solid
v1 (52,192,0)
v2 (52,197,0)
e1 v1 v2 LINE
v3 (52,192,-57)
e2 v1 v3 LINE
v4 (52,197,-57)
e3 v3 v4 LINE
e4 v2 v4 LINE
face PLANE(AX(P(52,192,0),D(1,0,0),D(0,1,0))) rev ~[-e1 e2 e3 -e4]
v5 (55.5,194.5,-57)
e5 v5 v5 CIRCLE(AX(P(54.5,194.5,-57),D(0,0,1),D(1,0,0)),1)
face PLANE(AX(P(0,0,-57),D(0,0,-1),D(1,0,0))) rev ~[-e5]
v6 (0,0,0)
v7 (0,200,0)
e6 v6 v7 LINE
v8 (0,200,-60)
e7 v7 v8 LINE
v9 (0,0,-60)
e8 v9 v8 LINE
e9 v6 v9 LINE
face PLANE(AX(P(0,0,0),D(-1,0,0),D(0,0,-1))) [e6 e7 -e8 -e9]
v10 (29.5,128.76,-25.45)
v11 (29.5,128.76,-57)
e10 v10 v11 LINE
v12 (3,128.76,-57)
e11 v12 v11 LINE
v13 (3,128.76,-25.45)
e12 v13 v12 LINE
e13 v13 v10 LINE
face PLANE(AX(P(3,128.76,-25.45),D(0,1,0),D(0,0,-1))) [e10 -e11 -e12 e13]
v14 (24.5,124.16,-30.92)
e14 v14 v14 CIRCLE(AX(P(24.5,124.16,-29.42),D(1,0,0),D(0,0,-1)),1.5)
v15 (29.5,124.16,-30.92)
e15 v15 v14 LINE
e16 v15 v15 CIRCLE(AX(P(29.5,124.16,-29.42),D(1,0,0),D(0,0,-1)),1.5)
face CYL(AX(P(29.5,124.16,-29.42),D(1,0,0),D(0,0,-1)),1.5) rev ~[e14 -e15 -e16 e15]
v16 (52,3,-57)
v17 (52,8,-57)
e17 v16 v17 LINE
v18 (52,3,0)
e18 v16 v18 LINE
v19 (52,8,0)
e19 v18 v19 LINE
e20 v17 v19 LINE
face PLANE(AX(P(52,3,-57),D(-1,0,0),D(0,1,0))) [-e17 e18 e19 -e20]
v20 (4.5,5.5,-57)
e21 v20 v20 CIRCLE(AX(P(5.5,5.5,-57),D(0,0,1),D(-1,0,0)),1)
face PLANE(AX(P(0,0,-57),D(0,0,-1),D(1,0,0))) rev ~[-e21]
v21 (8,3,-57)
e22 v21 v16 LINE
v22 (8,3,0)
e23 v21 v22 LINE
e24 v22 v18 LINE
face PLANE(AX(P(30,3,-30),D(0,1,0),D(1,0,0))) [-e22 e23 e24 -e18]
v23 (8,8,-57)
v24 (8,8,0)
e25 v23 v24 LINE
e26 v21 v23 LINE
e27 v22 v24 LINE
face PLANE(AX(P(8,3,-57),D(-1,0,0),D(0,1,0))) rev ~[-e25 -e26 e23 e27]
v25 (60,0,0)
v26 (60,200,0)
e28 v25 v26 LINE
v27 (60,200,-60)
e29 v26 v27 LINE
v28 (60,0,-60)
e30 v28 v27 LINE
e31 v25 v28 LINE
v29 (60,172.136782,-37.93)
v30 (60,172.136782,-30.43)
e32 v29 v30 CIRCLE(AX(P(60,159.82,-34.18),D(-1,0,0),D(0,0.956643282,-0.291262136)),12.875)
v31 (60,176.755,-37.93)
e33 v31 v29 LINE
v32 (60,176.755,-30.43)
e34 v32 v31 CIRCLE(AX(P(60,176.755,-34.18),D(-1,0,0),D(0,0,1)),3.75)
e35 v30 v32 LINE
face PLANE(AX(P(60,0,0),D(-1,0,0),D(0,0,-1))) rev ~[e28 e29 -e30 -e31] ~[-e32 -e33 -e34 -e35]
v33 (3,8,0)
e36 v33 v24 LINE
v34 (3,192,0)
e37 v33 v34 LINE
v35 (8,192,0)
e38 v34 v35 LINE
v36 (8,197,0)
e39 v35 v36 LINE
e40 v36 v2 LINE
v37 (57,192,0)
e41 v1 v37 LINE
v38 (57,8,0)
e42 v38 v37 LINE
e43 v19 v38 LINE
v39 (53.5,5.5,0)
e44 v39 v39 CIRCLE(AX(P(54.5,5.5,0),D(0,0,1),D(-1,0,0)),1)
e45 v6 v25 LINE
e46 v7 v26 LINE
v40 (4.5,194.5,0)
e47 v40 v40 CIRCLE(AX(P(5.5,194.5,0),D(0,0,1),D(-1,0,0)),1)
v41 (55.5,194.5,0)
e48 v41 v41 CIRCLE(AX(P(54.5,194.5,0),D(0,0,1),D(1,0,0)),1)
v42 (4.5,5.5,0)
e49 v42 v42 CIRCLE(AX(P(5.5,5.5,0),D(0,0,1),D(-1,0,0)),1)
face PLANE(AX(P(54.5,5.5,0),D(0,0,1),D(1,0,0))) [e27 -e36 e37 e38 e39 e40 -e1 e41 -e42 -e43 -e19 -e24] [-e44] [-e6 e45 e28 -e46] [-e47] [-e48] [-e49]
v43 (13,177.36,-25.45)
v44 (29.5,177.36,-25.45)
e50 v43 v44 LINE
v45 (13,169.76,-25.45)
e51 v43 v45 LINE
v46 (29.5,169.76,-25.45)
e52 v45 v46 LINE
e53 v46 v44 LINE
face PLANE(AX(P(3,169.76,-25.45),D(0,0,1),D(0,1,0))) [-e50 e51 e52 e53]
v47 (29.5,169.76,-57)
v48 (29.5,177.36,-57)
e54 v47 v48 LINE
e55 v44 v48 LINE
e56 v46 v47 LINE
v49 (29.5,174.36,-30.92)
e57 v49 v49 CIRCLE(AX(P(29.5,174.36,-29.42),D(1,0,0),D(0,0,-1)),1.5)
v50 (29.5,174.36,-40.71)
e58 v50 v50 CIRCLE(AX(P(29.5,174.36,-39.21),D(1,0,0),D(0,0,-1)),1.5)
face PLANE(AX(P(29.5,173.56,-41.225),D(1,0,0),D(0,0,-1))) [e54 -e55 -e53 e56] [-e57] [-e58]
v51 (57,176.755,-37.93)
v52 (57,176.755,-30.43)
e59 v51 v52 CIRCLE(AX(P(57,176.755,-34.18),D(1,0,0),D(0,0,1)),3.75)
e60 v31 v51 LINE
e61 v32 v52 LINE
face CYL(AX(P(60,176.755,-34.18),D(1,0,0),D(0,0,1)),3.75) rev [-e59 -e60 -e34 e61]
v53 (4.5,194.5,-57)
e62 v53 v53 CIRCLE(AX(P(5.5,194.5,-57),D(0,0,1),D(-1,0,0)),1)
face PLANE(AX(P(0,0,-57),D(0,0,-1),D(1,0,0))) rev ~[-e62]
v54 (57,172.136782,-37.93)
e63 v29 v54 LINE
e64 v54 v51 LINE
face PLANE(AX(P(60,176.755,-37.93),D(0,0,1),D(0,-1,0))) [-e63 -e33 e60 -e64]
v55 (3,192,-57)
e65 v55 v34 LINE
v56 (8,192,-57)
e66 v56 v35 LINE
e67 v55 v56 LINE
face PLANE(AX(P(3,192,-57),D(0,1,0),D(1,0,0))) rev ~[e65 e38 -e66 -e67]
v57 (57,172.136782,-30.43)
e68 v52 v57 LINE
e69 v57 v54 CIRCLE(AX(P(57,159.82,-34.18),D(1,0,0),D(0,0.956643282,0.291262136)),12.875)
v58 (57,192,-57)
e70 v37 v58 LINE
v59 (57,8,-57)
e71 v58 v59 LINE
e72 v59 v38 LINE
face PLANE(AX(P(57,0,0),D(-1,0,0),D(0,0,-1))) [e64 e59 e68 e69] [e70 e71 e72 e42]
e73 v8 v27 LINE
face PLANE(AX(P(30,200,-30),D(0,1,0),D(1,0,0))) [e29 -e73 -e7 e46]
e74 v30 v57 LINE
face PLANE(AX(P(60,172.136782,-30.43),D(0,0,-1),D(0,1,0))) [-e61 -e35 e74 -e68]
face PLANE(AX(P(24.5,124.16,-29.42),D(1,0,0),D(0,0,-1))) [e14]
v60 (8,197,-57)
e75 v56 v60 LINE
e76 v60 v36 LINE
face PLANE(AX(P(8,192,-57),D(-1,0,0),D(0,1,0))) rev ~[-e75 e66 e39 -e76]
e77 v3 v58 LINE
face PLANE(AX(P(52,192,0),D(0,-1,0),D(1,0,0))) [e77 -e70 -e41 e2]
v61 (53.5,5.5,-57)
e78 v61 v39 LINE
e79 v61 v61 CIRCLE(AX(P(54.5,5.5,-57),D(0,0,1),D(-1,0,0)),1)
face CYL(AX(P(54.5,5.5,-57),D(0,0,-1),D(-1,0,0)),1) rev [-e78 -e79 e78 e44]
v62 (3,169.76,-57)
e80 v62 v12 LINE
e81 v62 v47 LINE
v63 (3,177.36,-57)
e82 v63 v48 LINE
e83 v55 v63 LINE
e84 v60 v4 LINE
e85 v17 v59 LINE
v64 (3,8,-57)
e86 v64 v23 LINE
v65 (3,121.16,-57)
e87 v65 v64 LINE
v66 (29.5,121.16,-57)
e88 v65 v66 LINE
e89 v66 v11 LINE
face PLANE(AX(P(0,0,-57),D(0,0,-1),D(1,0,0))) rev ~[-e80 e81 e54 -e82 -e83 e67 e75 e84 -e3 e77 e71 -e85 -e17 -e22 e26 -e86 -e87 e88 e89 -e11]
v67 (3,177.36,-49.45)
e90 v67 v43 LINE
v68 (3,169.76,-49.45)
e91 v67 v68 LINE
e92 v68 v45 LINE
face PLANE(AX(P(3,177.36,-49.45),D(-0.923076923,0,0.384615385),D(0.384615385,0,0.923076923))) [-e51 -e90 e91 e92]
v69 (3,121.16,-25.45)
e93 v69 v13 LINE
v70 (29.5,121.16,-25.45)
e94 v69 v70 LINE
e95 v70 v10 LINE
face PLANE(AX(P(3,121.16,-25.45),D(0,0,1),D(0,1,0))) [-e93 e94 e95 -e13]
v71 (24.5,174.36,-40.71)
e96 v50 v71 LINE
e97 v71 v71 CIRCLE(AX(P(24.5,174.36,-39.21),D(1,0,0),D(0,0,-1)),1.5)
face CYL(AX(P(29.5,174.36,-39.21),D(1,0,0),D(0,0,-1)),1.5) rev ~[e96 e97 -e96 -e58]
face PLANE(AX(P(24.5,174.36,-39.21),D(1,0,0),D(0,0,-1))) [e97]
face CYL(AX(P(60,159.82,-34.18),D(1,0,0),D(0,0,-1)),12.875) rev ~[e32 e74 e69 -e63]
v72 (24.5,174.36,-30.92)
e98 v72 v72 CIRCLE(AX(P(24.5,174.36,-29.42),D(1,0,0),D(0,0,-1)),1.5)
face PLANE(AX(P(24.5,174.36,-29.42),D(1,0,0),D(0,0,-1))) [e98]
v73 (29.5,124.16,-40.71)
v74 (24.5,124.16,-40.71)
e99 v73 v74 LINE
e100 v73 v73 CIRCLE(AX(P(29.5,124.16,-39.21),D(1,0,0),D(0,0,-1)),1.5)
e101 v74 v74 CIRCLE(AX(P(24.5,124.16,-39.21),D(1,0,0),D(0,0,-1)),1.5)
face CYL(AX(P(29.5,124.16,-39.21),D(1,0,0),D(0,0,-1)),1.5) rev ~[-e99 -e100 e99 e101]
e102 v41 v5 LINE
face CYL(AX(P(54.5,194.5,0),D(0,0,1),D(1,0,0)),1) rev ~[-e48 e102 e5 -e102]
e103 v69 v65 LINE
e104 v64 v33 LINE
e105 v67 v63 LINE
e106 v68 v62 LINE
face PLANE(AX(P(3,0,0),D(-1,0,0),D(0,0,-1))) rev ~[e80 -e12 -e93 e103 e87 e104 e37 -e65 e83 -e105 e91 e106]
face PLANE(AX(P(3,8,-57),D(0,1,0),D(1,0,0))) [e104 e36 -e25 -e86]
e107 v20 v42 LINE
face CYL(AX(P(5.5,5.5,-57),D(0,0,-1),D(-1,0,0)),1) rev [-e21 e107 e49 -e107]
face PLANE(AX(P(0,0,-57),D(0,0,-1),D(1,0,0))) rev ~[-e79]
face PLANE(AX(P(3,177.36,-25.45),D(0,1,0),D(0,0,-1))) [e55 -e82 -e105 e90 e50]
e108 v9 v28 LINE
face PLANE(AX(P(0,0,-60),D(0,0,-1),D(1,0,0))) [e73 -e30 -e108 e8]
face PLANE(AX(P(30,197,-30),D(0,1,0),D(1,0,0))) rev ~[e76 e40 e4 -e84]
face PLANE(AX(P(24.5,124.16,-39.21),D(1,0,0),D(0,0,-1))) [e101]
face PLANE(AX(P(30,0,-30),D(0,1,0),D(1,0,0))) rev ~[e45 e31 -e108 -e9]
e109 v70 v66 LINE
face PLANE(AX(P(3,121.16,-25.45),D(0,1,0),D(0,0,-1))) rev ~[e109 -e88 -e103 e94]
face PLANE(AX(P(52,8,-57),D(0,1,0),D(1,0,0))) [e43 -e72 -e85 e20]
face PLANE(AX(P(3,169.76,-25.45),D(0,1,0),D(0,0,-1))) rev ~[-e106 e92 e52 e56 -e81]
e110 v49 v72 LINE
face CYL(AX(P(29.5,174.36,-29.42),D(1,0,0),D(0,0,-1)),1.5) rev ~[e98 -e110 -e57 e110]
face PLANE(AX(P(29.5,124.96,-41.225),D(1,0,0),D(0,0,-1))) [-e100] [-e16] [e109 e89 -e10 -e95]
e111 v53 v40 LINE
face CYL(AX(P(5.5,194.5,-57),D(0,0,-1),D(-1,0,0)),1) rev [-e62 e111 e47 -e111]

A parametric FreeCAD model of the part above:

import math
import FreeCAD as App
import Part
import Sketcher
Q = App.Units.Quantity


def faces_at(feature, points):
    """Names of the faces that lie closest to the given points."""
    faces = feature.Shape.Faces
    near = lambda p: min(range(len(faces)), key=lambda i: faces[i].distToShape(Part.Vertex(*p))[0])
    return sorted({f"Face{near(p) + 1}" for p in points})


def add_polygon(sketch, points):
    """Adds a closed chain of lines whose ends are joined by coincident constraints."""
    first, n = sketch.GeometryCount, len(points)
    for a, b in zip(points, points[1:] + points[:1]):
        sketch.addGeometry(Part.LineSegment(App.Vector(*a, 0), App.Vector(*b, 0)), False)
    for i in range(n):
        sketch.addConstraint(Sketcher.Constraint("Coincident", first + i, 2, first + (i + 1) % n, 1))

doc = App.newDocument("Part")
body = doc.addObject("PartDesign::Body", "Body")

sketch1 = body.newObject("Sketcher::SketchObject", "Sketch")
sketch1.AttachmentSupport = (doc.getObject("XZ_Plane"), [""])
sketch1.MapMode = "FlatFace"
add_polygon(sketch1, [(0, -60), (0, 0), (60, 0), (60, -60)])
sketch1.addConstraint([
    Sketcher.Constraint("Vertical", 0),
    Sketcher.Constraint("Horizontal", 1),
    Sketcher.Constraint("Vertical", 2),
    Sketcher.Constraint("Horizontal", 3),
    Sketcher.Constraint("Coincident", 0, 2, -1, 1),
    Sketcher.Constraint("Equal", 3, 0),
    Sketcher.Constraint("DistanceX", 1, 1, 1, 2, Q("60 mm")),
])
pad1 = body.newObject("PartDesign::Pad", "Pad")
pad1.Profile = sketch1
pad1.Length = 200
pad1.Reversed = True
doc.recompute()

thickness = body.newObject("PartDesign::Thickness", "Thickness")
thickness.Base = (pad1, faces_at(pad1, [(30, 100, 0)]))
thickness.Value = 3
thickness.Reversed = True
thickness.Join = "Intersection"

sketch2 = body.newObject("Sketcher::SketchObject", "Sketch001")
sketch2.AttachmentSupport = (doc.getObject("XY_Plane"), [""])
sketch2.MapMode = "FlatFace"
sketch2.AttachmentOffset = App.Placement(App.Vector(0, 0, -57), App.Rotation())
add_polygon(sketch2, [(3, 197), (3, 192), (8, 192), (8, 197)])
sketch2.addGeometry(Part.Circle(App.Vector(5.5, 194.5, 0), App.Vector(0, 0, 1), 1), False)
sketch2.addConstraint([
    Sketcher.Constraint("Vertical", 0),
    Sketcher.Constraint("Horizontal", 1),
    Sketcher.Constraint("Vertical", 2),
    Sketcher.Constraint("Horizontal", 3),
    Sketcher.Constraint("Equal", 3, 0),
    Sketcher.Constraint("Diameter", 4, Q("2 mm")),
    Sketcher.Constraint("DistanceX", 1, 1, 1, 2, Q("5 mm")),
    Sketcher.Constraint("DistanceX", -1, 1, 0, 2, Q("3 mm")),
    Sketcher.Constraint("DistanceY", -1, 1, 0, 2, Q("192 mm")),
    Sketcher.Constraint("DistanceX", -1, 1, 4, 3, Q("5.5 mm")),
    Sketcher.Constraint("DistanceY", -1, 1, 4, 3, Q("194.5 mm")),
])
pad2 = body.newObject("PartDesign::Pad", "Pad001")
pad2.Profile = sketch2
pad2.Length = 57

sketch3 = body.newObject("Sketcher::SketchObject", "Sketch002")
sketch3.AttachmentSupport = (doc.getObject("XY_Plane"), [""])
sketch3.MapMode = "FlatFace"
add_polygon(sketch3, [(52, 197), (52, 192), (57, 192), (57, 197)])
sketch3.addGeometry(Part.Circle(App.Vector(54.5, 194.5, 0), App.Vector(0, 0, 1), 1), False)
sketch3.addConstraint([
    Sketcher.Constraint("Vertical", 0),
    Sketcher.Constraint("Horizontal", 1),
    Sketcher.Constraint("Vertical", 2),
    Sketcher.Constraint("Horizontal", 3),
    Sketcher.Constraint("Equal", 3, 0),
    Sketcher.Constraint("Diameter", 4, Q("2 mm")),
    Sketcher.Constraint("DistanceX", 1, 1, 1, 2, Q("5 mm")),
    Sketcher.Constraint("DistanceX", -1, 1, 0, 2, Q("52 mm")),
    Sketcher.Constraint("DistanceY", -1, 1, 0, 2, Q("192 mm")),
    Sketcher.Constraint("DistanceX", -1, 1, 4, 3, Q("54.5 mm")),
    Sketcher.Constraint("DistanceY", -1, 1, 4, 3, Q("194.5 mm")),
])
pad3 = body.newObject("PartDesign::Pad", "Pad002")
pad3.Profile = sketch3
pad3.Length = 57
pad3.Reversed = True

sketch4 = body.newObject("Sketcher::SketchObject", "Sketch003")
sketch4.AttachmentSupport = (doc.getObject("XY_Plane"), [""])
sketch4.MapMode = "FlatFace"
sketch4.AttachmentOffset = App.Placement(App.Vector(0, 0, -57), App.Rotation())
add_polygon(sketch4, [(3, 8), (3, 3), (8, 3), (8, 8)])
sketch4.addGeometry(Part.Circle(App.Vector(5.5, 5.5, 0), App.Vector(0, 0, 1), 1), False)
sketch4.addConstraint([
    Sketcher.Constraint("Vertical", 0),
    Sketcher.Constraint("Horizontal", 1),
    Sketcher.Constraint("Vertical", 2),
    Sketcher.Constraint("Horizontal", 3),
    Sketcher.Constraint("Equal", 3, 0),
    Sketcher.Constraint("Diameter", 4, Q("2 mm")),
    Sketcher.Constraint("DistanceX", 1, 1, 1, 2, Q("5 mm")),
    Sketcher.Constraint("DistanceX", -1, 1, 0, 2, Q("3 mm")),
    Sketcher.Constraint("DistanceY", -1, 1, 0, 2, Q("3 mm")),
    Sketcher.Constraint("DistanceX", -1, 1, 4, 3, Q("5.5 mm")),
    Sketcher.Constraint("DistanceY", -1, 1, 4, 3, Q("5.5 mm")),
])
pad4 = body.newObject("PartDesign::Pad", "Pad003")
pad4.Profile = sketch4
pad4.Length = 57

sketch5 = body.newObject("Sketcher::SketchObject", "Sketch004")
sketch5.AttachmentSupport = (doc.getObject("XY_Plane"), [""])
sketch5.MapMode = "FlatFace"
sketch5.AttachmentOffset = App.Placement(App.Vector(0, 0, -57), App.Rotation())
add_polygon(sketch5, [(52, 8), (52, 3), (57, 3), (57, 8)])
sketch5.addGeometry(Part.Circle(App.Vector(54.5, 5.5, 0), App.Vector(0, 0, 1), 1), False)
sketch5.addConstraint([
    Sketcher.Constraint("Vertical", 0),
    Sketcher.Constraint("Horizontal", 1),
    Sketcher.Constraint("Vertical", 2),
    Sketcher.Constraint("Horizontal", 3),
    Sketcher.Constraint("Equal", 3, 0),
    Sketcher.Constraint("Diameter", 4, Q("2 mm")),
    Sketcher.Constraint("DistanceX", 1, 1, 1, 2, Q("5 mm")),
    Sketcher.Constraint("DistanceX", -1, 1, 0, 2, Q("52 mm")),
    Sketcher.Constraint("DistanceY", -1, 1, 0, 2, Q("3 mm")),
    Sketcher.Constraint("DistanceX", -1, 1, 4, 3, Q("54.5 mm")),
    Sketcher.Constraint("DistanceY", -1, 1, 4, 3, Q("5.5 mm")),
])
pad5 = body.newObject("PartDesign::Pad", "Pad004")
pad5.Profile = sketch5
pad5.Length = 57

sketch6 = body.newObject("Sketcher::SketchObject", "Sketch005")
sketch6.AttachmentSupport = (doc.getObject("YZ_Plane"), [""])
sketch6.MapMode = "FlatFace"
sketch6.AttachmentOffset = App.Placement(App.Vector(0, 0, 60), App.Rotation())
sketch6.addGeometry(Part.Circle(App.Vector(160, -34, 0), App.Vector(0, 0, 1), 13), False)
sketch6.addConstraint([
    Sketcher.Constraint("Diameter", 0, Q("25.75 mm")),
    Sketcher.Constraint("DistanceX", -1, 1, 0, 3, Q("159.82 mm")),
    Sketcher.Constraint("DistanceY", 0, 3, -1, 1, Q("34.18 mm")),
])
pocket1 = body.newObject("PartDesign::Pocket", "Pocket")
pocket1.Profile = sketch6
pocket1.Length = 3

sketch7 = body.newObject("Sketcher::SketchObject", "Sketch006")
sketch7.AttachmentSupport = (doc.getObject("YZ_Plane"), [""])
sketch7.MapMode = "FlatFace"
sketch7.AttachmentOffset = App.Placement(App.Vector(0, 0, 3), App.Rotation())
add_polygon(sketch7, [(177, -25), (170, -25), (170, -57), (177, -57)])
add_polygon(sketch7, [(129, -25), (121, -25), (121, -57), (129, -57)])
sketch7.addConstraint([
    Sketcher.Constraint("Horizontal", 0),
    Sketcher.Constraint("Vertical", 1),
    Sketcher.Constraint("Horizontal", 2),
    Sketcher.Constraint("Vertical", 3),
    Sketcher.Constraint("Horizontal", 4),
    Sketcher.Constraint("Vertical", 5),
    Sketcher.Constraint("Horizontal", 6),
    Sketcher.Constraint("Vertical", 7),
    Sketcher.Constraint("Horizontal", 3, 2, 4, 2),
    Sketcher.Constraint("Horizontal", 2, 2, 5, 2),
    Sketcher.Constraint("Equal", 2, 4),
    Sketcher.Constraint("DistanceX", 0, 2, 0, 1, Q("7.6 mm")),
    Sketcher.Constraint("DistanceY", 1, 2, -1, 1, Q("57 mm")),
    Sketcher.Constraint("DistanceX", 6, 2, 1, 2, Q("41 mm")),
    Sketcher.Constraint("DistanceY", 1, 2, 1, 1, Q("31.55 mm")),
    Sketcher.Constraint("DistanceX", -1, 1, 0, 2, Q("169.76 mm")),
])
pad6 = body.newObject("PartDesign::Pad", "Pad005")
pad6.Profile = sketch7
pad6.Length = 26.5

sketch8 = body.newObject("Sketcher::SketchObject", "Sketch007")
sketch8.AttachmentSupport = (doc.getObject("YZ_Plane"), [""])
sketch8.MapMode = "FlatFace"
sketch8.AttachmentOffset = App.Placement(App.Vector(0, 0, 29.5), App.Rotation())
sketch8.addGeometry([
    Part.Circle(App.Vector(174.4, -39.2, 0), App.Vector(0, 0, 1), 1.5),
    Part.Circle(App.Vector(174.4, -29.4, 0), App.Vector(0, 0, 1), 1.5),
], False)
sketch8.addConstraint([
    Sketcher.Constraint("Equal", 0, 1),
    Sketcher.Constraint("Vertical", 0, 3, 1, 3),
    Sketcher.Constraint("Diameter", 0, Q("3 mm")),
    Sketcher.Constraint("DistanceX", -1, 1, 0, 3, Q("174.36 mm")),
    Sketcher.Constraint("DistanceY", 0, 3, -1, 1, Q("39.21 mm")),
    Sketcher.Constraint("DistanceY", 1, 3, -1, 1, Q("29.42 mm")),
])
pocket2 = body.newObject("PartDesign::Pocket", "Pocket001")
pocket2.Profile = sketch8
pocket2.Length = 5

sketch9 = body.newObject("Sketcher::SketchObject", "Sketch008")
sketch9.AttachmentSupport = (doc.getObject("XZ_Plane"), [""])
sketch9.MapMode = "FlatFace"
sketch9.AttachmentOffset = App.Placement(App.Vector(0, 0, -177.36), App.Rotation())
add_polygon(sketch9, [(3, -25), (13, -25), (3, -49)])
sketch9.addConstraint([
    Sketcher.Constraint("Horizontal", 0),
    Sketcher.Constraint("Vertical", 2),
    Sketcher.Constraint("DistanceX", 0, 1, 0, 2, Q("10 mm")),
    Sketcher.Constraint("DistanceY", 2, 1, 2, 2, Q("24 mm")),
    Sketcher.Constraint("DistanceX", -1, 1, 0, 2, Q("13 mm")),
    Sketcher.Constraint("DistanceY", 0, 2, -1, 1, Q("25.45 mm")),
])
pocket3 = body.newObject("PartDesign::Pocket", "Pocket002")
pocket3.Profile = sketch9
pocket3.Length = 10
pocket3.Reversed = True

sketch10 = body.newObject("Sketcher::SketchObject", "Sketch009")
sketch10.AttachmentSupport = (doc.getObject("YZ_Plane"), [""])
sketch10.MapMode = "FlatFace"
sketch10.AttachmentOffset = App.Placement(App.Vector(0, 0, 29.5), App.Rotation())
sketch10.addGeometry([
    Part.Circle(App.Vector(124.2, -39.2, 0), App.Vector(0, 0, 1), 1.5),
    Part.Circle(App.Vector(124.2, -29.4, 0), App.Vector(0, 0, 1), 1.5),
], False)
sketch10.addConstraint([
    Sketcher.Constraint("Equal", 0, 1),
    Sketcher.Constraint("Vertical", 0, 3, 1, 3),
    Sketcher.Constraint("Diameter", 0, Q("3 mm")),
    Sketcher.Constraint("DistanceX", -1, 1, 0, 3, Q("124.16 mm")),
    Sketcher.Constraint("DistanceY", 0, 3, -1, 1, Q("39.21 mm")),
    Sketcher.Constraint("DistanceY", 1, 3, -1, 1, Q("29.42 mm")),
])
pocket4 = body.newObject("PartDesign::Pocket", "Pocket003")
pocket4.Profile = sketch10
pocket4.Length = 5

sketch11 = body.newObject("Sketcher::SketchObject", "Sketch010")
sketch11.AttachmentSupport = (doc.getObject("YZ_Plane"), [""])
sketch11.MapMode = "FlatFace"
sketch11.AttachmentOffset = App.Placement(App.Vector(0, 0, 60), App.Rotation())
sketch11.addGeometry([
    Part.ArcOfCircle(Part.Circle(App.Vector(176.8, -34.2, 0), App.Vector(0, 0, 1), 3.8), math.radians(-90), math.radians(90)),
    Part.LineSegment(App.Vector(176.8, -30.4, 0), App.Vector(172.1, -30.4, 0)),
    Part.LineSegment(App.Vector(172.1, -30.4, 0), App.Vector(172.1, -37.9, 0)),
    Part.LineSegment(App.Vector(172.1, -37.9, 0), App.Vector(176.8, -37.9, 0)),
], False)
sketch11.addConstraint([
    Sketcher.Constraint("Tangent", 0, 2, 1, 1),
    Sketcher.Constraint("Coincident", 1, 2, 2, 1),
    Sketcher.Constraint("Coincident", 2, 2, 3, 1),
    Sketcher.Constraint("Tangent", 3, 2, 0, 1),
    Sketcher.Constraint("Horizontal", 1),
    Sketcher.Constraint("Vertical", 2),
    Sketcher.Constraint("Horizontal", 3),
    Sketcher.Constraint("Radius", 0, Q("3.75 mm")),
    Sketcher.Constraint("DistanceY", 0, 3, -1, 1, Q("34.18 mm")),
    Sketcher.Constraint("DistanceX", -1, 1, 0, 3, Q("176.755 mm")),
    Sketcher.Constraint("DistanceX", 1, 2, 1, 1, Q("4.618218 mm")),
])
pocket5 = body.newObject("PartDesign::Pocket", "Pocket004")
pocket5.Profile = sketch11
pocket5.Length = 10

doc.recompute()
